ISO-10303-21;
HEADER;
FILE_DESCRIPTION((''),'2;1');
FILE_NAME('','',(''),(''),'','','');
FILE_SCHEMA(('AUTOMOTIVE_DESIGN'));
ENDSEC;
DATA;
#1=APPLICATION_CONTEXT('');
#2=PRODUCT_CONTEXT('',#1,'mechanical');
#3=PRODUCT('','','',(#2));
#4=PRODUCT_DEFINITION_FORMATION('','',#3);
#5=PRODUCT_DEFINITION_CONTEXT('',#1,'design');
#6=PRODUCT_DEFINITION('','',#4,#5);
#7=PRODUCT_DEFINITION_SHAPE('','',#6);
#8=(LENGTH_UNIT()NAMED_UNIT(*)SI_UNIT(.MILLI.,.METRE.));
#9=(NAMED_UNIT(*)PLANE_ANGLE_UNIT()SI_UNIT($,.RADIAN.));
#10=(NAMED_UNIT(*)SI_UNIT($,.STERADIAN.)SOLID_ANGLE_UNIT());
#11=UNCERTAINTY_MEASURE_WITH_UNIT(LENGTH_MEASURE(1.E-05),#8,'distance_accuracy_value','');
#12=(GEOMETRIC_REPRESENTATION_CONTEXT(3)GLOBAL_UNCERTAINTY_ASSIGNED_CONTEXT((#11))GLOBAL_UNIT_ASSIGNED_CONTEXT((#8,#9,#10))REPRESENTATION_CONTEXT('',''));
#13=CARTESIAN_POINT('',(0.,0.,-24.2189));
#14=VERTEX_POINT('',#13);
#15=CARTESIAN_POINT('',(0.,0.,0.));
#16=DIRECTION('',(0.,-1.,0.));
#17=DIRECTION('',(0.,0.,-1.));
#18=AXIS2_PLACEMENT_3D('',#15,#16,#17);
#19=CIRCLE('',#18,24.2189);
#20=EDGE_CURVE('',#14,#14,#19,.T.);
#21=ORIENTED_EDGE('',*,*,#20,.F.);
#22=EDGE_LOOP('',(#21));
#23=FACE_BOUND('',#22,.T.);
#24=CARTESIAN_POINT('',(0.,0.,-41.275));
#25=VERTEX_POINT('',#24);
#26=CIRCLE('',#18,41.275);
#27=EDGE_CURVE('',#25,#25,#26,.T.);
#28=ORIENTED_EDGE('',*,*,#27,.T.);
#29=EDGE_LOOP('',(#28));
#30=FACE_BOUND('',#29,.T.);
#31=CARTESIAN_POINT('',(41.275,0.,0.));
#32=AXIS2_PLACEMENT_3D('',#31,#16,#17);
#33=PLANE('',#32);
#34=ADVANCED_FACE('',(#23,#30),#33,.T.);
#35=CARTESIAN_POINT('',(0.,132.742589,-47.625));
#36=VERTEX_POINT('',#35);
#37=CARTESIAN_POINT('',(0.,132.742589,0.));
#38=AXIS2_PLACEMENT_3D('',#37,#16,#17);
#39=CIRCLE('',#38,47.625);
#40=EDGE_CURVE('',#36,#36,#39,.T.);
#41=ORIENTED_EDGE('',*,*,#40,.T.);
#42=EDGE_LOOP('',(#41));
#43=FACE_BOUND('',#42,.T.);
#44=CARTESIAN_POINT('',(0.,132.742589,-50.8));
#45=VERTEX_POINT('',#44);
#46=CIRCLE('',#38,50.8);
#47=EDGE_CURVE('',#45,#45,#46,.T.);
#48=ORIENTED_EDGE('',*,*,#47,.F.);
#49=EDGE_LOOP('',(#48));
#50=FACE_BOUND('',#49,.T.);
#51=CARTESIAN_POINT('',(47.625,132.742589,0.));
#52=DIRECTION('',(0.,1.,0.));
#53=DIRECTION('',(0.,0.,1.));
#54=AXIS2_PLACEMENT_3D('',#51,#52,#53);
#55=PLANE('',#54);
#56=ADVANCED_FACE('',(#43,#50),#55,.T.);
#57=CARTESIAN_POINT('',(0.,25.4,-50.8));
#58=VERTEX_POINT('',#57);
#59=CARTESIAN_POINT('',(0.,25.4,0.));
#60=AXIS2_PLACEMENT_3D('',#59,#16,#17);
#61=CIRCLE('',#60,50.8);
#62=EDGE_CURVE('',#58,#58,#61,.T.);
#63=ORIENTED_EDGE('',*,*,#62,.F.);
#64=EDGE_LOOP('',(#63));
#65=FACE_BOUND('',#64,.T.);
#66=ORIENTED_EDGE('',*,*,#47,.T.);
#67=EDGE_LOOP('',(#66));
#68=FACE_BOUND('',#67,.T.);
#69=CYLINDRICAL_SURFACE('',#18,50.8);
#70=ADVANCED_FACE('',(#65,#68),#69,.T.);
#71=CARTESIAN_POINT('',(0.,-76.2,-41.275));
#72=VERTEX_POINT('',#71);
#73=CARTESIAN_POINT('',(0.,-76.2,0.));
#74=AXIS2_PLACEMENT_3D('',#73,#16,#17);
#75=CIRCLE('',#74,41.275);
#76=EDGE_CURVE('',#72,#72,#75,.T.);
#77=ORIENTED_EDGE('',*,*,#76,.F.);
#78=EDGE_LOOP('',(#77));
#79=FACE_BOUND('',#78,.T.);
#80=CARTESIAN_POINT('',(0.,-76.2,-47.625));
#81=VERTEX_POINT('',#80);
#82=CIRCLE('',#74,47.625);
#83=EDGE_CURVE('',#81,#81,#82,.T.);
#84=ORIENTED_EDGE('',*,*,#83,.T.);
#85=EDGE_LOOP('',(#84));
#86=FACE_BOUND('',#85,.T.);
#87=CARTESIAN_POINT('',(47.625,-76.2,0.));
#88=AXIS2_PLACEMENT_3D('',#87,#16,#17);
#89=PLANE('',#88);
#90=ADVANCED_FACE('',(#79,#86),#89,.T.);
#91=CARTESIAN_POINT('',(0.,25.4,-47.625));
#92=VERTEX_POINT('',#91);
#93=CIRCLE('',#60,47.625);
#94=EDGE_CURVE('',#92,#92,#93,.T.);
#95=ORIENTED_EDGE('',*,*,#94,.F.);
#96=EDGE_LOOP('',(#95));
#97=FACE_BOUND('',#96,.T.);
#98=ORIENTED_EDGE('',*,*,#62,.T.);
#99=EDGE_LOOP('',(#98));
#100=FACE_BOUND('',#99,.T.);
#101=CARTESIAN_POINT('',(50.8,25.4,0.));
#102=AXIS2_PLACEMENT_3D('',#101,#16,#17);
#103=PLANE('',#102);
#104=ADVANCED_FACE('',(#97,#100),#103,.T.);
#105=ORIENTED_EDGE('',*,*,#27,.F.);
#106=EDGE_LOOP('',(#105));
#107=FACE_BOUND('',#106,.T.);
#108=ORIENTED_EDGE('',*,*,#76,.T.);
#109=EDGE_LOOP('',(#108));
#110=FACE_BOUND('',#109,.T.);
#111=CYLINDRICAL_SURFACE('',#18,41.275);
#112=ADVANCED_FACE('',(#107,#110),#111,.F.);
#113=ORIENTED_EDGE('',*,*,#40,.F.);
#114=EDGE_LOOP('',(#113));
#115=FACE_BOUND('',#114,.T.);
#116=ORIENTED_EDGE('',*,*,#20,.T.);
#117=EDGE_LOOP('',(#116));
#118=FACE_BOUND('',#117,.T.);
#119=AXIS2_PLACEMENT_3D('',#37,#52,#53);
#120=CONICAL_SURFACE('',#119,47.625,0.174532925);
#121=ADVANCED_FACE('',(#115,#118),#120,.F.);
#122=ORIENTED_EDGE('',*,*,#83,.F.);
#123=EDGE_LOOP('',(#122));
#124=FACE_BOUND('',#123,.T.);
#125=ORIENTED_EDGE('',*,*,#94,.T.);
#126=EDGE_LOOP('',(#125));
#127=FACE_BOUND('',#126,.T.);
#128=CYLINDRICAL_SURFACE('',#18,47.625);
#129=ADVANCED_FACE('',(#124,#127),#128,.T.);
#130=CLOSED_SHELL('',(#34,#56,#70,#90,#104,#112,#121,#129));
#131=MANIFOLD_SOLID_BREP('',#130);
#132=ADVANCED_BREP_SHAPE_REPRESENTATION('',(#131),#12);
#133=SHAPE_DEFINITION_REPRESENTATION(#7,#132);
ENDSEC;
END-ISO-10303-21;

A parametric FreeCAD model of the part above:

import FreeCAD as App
import Part
import Sketcher
Q = App.Units.Quantity


def add_polygon(sketch, points):
    """Adds a closed chain of lines whose ends are joined by coincident constraints."""
    first, n = sketch.GeometryCount, len(points)
    for a, b in zip(points, points[1:] + points[:1]):
        sketch.addGeometry(Part.LineSegment(App.Vector(*a, 0), App.Vector(*b, 0)), False)
    for i in range(n):
        sketch.addConstraint(Sketcher.Constraint("Coincident", first + i, 2, first + (i + 1) % n, 1))

doc = App.newDocument("Part")
body = doc.addObject("PartDesign::Body", "Body")

# Sketch on XY plane
sketch1 = body.newObject("Sketcher::SketchObject", "Sketch")
sketch1.AttachmentSupport = (doc.getObject("XY_Plane"), [""])
sketch1.MapMode = "FlatFace"
add_polygon(sketch1, [(47.625, 132.742589), (24.2189, 0), (41.275, 0), (41.275, -76.2), (47.625, -76.2), (47.625, 25.4), (50.8, 25.4), (50.8, 132.742589)])  # lines 0-7
sketch1.addConstraint([
    Sketcher.Constraint("Horizontal", 1),
    Sketcher.Constraint("Vertical", 2),
    Sketcher.Constraint("Horizontal", 3),
    Sketcher.Constraint("Vertical", 4),
    Sketcher.Constraint("Horizontal", 5),
    Sketcher.Constraint("Vertical", 6),
    Sketcher.Constraint("Horizontal", 7),
    Sketcher.Constraint("PointOnObject", 0, 2, -1),
    Sketcher.Constraint("Vertical", 4, 2, 7, 2),
    Sketcher.Constraint("DistanceY", 2, 2, 2, 1, Q("3 in")),
    Sketcher.Constraint("DistanceY", 4, 1, 4, 2, Q("4 in")),
    Sketcher.Constraint("DistanceX", -1, 1, 5, 2, Q("2 in")),
    Sketcher.Constraint("Angle", 0, Q("-100 deg")),
    Sketcher.Constraint("DistanceX", 3, 1, 3, 2, Q("0.25 in")),
    Sketcher.Constraint("DistanceX", 5, 1, 5, 2, Q("0.125 in")),
    Sketcher.Constraint("DistanceX", 1, 1, 1, 2, Q("0.6715 in")),
])
revolution = body.newObject("PartDesign::Revolution", "Revolution")
revolution.Profile = sketch1
revolution.ReferenceAxis = (sketch1, ["V_Axis"])
revolution.Angle = 360

doc.recompute()
